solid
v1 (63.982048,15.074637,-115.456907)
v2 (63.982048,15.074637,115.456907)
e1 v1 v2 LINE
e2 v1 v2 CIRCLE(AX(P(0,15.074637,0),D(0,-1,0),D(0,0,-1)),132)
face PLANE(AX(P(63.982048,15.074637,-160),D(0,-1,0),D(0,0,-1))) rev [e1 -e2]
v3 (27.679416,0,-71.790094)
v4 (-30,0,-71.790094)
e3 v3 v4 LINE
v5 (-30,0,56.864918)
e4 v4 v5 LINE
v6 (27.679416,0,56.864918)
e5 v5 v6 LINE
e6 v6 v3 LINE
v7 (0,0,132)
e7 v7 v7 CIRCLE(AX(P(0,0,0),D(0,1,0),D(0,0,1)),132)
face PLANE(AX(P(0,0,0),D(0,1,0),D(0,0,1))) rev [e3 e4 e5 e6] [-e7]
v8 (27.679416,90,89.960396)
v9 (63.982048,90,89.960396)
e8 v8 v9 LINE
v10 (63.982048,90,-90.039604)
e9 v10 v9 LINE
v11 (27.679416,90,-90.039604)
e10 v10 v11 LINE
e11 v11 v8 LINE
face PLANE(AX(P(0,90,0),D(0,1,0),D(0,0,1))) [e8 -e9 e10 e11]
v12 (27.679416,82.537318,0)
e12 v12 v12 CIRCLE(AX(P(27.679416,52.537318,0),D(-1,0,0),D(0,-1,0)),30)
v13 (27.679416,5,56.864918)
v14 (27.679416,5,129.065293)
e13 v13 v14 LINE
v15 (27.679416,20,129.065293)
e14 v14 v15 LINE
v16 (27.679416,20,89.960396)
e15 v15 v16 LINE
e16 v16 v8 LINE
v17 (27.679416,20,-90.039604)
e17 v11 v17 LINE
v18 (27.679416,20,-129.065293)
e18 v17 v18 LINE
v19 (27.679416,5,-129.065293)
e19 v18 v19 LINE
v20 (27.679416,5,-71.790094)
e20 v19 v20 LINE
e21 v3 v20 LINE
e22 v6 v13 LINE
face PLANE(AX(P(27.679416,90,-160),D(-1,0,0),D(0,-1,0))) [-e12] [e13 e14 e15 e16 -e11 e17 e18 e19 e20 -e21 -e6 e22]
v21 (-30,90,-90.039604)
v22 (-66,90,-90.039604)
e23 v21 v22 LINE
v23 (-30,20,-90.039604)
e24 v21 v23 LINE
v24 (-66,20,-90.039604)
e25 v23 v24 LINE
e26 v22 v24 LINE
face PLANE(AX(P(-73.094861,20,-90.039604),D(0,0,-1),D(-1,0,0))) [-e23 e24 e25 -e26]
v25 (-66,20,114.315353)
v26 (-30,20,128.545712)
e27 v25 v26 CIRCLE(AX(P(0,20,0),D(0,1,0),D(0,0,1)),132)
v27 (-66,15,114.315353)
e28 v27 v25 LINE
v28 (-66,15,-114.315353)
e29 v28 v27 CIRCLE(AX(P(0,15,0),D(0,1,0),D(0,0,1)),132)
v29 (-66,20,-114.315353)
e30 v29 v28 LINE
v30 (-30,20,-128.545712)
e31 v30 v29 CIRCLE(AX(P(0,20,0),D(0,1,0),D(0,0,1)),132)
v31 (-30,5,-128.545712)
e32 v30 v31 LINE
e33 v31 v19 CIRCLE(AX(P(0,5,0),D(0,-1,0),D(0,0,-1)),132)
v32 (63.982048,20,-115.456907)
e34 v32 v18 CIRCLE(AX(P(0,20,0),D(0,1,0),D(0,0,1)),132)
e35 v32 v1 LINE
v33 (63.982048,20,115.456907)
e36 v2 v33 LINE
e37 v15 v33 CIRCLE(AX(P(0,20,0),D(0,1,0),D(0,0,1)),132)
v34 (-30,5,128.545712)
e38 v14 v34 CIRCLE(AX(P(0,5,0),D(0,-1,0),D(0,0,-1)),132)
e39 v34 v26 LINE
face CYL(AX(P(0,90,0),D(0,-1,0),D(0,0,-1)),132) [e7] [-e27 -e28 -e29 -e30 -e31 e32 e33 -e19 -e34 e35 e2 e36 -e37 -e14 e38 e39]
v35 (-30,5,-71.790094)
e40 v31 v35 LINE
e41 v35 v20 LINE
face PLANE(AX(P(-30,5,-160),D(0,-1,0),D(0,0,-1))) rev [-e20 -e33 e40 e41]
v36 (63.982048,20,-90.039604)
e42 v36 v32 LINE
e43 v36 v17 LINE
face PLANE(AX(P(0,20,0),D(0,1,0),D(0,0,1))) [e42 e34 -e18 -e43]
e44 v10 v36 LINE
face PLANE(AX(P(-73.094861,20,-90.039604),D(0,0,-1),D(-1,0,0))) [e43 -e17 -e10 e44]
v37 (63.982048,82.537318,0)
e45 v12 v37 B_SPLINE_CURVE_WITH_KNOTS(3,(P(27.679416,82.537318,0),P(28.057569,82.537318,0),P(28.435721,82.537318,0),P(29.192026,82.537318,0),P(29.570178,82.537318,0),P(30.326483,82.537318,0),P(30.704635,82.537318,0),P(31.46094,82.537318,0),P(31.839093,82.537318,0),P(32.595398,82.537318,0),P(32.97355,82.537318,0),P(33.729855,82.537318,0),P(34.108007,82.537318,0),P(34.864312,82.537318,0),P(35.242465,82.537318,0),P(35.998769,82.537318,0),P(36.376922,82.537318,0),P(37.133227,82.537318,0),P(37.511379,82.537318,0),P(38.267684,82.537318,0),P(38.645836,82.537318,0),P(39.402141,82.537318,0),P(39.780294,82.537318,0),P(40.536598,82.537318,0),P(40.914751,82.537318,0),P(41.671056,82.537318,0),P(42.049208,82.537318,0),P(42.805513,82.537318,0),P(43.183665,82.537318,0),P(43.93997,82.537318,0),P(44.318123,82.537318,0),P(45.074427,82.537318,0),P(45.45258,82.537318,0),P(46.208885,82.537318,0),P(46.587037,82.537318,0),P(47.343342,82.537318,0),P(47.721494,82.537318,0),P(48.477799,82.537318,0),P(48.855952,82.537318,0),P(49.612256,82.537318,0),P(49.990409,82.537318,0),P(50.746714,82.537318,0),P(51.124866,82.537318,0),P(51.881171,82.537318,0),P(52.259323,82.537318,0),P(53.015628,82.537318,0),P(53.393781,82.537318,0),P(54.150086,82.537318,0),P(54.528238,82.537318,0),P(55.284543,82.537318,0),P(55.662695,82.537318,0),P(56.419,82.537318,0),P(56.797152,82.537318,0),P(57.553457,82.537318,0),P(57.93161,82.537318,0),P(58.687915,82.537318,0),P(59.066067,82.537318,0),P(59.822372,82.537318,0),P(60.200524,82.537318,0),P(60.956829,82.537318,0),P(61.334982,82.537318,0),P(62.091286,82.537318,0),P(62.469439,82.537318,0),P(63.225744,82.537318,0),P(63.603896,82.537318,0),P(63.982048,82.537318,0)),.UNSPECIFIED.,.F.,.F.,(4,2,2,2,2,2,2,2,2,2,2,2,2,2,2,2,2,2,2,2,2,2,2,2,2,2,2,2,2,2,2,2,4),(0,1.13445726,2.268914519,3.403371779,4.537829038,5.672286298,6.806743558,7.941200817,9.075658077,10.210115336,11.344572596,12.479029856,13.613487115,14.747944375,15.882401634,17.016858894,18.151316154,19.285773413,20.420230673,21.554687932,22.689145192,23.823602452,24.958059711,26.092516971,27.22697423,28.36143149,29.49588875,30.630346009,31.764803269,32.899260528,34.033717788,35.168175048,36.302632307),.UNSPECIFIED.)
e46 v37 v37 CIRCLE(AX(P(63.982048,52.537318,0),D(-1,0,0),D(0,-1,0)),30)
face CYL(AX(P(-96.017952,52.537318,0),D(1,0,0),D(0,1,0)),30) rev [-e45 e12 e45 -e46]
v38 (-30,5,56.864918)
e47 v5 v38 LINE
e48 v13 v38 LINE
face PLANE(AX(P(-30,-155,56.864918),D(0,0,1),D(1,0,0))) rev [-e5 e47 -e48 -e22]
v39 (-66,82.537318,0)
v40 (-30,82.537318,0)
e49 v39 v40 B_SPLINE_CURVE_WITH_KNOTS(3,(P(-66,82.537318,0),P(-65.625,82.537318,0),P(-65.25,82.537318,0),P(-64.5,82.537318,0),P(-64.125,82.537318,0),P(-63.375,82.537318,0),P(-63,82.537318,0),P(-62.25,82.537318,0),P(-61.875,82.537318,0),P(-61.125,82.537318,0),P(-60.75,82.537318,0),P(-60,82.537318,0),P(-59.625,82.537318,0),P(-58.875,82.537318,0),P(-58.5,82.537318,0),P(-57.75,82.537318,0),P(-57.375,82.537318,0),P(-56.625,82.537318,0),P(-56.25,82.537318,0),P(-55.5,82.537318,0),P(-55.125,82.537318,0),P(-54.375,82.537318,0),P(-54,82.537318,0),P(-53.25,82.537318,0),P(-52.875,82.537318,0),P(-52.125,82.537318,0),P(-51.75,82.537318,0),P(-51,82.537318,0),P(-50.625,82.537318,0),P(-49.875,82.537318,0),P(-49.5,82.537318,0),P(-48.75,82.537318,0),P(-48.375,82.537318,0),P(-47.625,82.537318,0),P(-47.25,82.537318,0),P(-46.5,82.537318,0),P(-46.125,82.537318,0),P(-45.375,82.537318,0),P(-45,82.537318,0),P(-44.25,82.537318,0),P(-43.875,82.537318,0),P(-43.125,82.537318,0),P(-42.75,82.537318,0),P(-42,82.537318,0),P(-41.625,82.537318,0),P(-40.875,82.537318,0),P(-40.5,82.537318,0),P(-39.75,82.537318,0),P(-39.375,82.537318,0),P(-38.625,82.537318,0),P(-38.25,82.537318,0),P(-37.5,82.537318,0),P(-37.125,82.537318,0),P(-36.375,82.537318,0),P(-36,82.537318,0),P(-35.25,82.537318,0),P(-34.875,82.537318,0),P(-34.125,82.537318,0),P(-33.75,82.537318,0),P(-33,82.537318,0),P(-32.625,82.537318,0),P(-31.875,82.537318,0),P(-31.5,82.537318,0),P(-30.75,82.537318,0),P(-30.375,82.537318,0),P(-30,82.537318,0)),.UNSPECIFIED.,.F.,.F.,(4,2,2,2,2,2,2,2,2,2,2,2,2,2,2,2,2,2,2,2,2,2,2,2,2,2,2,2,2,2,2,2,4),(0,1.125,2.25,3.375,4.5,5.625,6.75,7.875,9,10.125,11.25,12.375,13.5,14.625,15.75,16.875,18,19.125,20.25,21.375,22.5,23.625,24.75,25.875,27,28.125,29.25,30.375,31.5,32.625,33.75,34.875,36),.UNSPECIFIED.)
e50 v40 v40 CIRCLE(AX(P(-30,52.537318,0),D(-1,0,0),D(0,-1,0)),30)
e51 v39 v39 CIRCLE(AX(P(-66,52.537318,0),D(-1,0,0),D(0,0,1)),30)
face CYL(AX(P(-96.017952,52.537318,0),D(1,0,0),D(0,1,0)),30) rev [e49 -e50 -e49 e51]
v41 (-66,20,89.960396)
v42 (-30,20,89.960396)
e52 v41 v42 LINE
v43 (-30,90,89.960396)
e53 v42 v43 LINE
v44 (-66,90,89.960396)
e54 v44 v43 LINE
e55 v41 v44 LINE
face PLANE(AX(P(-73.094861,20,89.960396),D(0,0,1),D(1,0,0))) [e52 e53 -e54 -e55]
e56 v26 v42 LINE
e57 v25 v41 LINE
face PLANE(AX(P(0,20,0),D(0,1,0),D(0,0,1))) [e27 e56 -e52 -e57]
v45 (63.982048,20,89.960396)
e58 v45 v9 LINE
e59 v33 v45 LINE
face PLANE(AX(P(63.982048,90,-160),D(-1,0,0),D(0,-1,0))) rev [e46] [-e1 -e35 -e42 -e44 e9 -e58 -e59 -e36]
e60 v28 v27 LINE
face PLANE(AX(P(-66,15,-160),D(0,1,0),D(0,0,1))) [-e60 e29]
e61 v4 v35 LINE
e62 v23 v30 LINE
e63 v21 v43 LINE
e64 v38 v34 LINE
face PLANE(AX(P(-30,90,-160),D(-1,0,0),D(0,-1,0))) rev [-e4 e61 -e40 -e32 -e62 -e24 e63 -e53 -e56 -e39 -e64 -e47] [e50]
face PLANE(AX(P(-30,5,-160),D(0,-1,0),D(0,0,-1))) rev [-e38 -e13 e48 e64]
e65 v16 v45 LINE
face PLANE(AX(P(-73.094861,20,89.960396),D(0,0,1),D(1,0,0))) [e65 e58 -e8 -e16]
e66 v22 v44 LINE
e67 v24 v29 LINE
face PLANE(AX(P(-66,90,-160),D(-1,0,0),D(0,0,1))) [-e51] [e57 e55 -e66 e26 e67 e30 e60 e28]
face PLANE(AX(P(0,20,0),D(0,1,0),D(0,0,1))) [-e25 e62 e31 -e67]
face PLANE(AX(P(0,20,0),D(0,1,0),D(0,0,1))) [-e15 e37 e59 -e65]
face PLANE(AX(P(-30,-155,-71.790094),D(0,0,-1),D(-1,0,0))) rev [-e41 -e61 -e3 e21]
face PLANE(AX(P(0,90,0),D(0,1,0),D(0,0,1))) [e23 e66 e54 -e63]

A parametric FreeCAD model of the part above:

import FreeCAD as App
import Part
import Sketcher

doc = App.newDocument("Part")
body = doc.addObject("PartDesign::Body", "Body")

# Sketch on XZ plane
sketch1 = body.newObject("Sketcher::SketchObject", "Sketch")
sketch1.AttachmentSupport = (doc.getObject("XZ_Plane"), [""])
sketch1.MapMode = "FlatFace"
sketch1.addGeometry(Part.Circle(App.Vector(0, 0, 0), App.Vector(0, 0, 1), 132), False)
sketch1.addConstraint(Sketcher.Constraint("Coincident", 0, 3, -1, 1))
sketch1.addConstraint(Sketcher.Constraint("Diameter", 0, 264.0))
pad1 = body.newObject("PartDesign::Pad", "Pad")
pad1.Profile = sketch1
pad1.Length = 90
pad1.Reversed = True

# Sketch on XY plane
sketch2 = body.newObject("Sketcher::SketchObject", "Sketch001")
sketch2.AttachmentSupport = (doc.getObject("XY_Plane"), [""])
sketch2.MapMode = "FlatFace"
sketch2.addGeometry(Part.LineSegment(App.Vector(-30, 90, 0), App.Vector(-30, 5, 0)), False)
sketch2.addGeometry(Part.LineSegment(App.Vector(-30, 5, 0), App.Vector(28, 5, 0)), False)
sketch2.addGeometry(Part.LineSegment(App.Vector(28, 5, 0), App.Vector(28, 90, 0)), False)
sketch2.addGeometry(Part.LineSegment(App.Vector(28, 90, 0), App.Vector(-30, 90, 0)), False)
sketch2.addConstraint(Sketcher.Constraint("Coincident", 0, 2, 1, 1))
sketch2.addConstraint(Sketcher.Constraint("Coincident", 1, 2, 2, 1))
sketch2.addConstraint(Sketcher.Constraint("Coincident", 2, 2, 3, 1))
sketch2.addConstraint(Sketcher.Constraint("Coincident", 3, 2, 0, 1))
sketch2.addConstraint(Sketcher.Constraint("Vertical", 0))
sketch2.addConstraint(Sketcher.Constraint("Horizontal", 1))
sketch2.addConstraint(Sketcher.Constraint("Vertical", 2))
sketch2.addConstraint(Sketcher.Constraint("Horizontal", 3))
sketch2.addConstraint(Sketcher.Constraint("DistanceY", 0, 2, 0, 1, 85.0))
sketch2.addConstraint(Sketcher.Constraint("DistanceX", 0, 2, -1, 1, 30.0))
sketch2.addConstraint(Sketcher.Constraint("DistanceY", -1, 1, 0, 2, 5.0))
sketch2.addConstraint(Sketcher.Constraint("DistanceX", 1, 1, 1, 2, 57.679416))
pocket1 = body.newObject("PartDesign::Pocket", "Pocket")
pocket1.Profile = sketch2
pocket1.Length = 320
pocket1.Midplane = True

# Sketch on XY plane
sketch3 = body.newObject("Sketcher::SketchObject", "Sketch002")
sketch3.AttachmentSupport = (doc.getObject("XY_Plane"), [""])
sketch3.MapMode = "FlatFace"
sketch3.addGeometry(Part.LineSegment(App.Vector(-132, 90, 0), App.Vector(-132, 15, 0)), False)
sketch3.addGeometry(Part.LineSegment(App.Vector(-132, 15, 0), App.Vector(-66, 15, 0)), False)
sketch3.addGeometry(Part.LineSegment(App.Vector(-66, 15, 0), App.Vector(-66, 90, 0)), False)
sketch3.addGeometry(Part.LineSegment(App.Vector(-66, 90, 0), App.Vector(-132, 90, 0)), False)
sketch3.addGeometry(Part.LineSegment(App.Vector(64, 90, 0), App.Vector(64, 15, 0)), False)
sketch3.addGeometry(Part.LineSegment(App.Vector(64, 15, 0), App.Vector(134, 15, 0)), False)
sketch3.addGeometry(Part.LineSegment(App.Vector(134, 15, 0), App.Vector(134, 90, 0)), False)
sketch3.addGeometry(Part.LineSegment(App.Vector(134, 90, 0), App.Vector(64, 90, 0)), False)
sketch3.addConstraint(Sketcher.Constraint("Coincident", 0, 2, 1, 1))
sketch3.addConstraint(Sketcher.Constraint("Coincident", 1, 2, 2, 1))
sketch3.addConstraint(Sketcher.Constraint("Coincident", 2, 2, 3, 1))
sketch3.addConstraint(Sketcher.Constraint("Coincident", 3, 2, 0, 1))
sketch3.addConstraint(Sketcher.Constraint("Coincident", 4, 2, 5, 1))
sketch3.addConstraint(Sketcher.Constraint("Coincident", 5, 2, 6, 1))
sketch3.addConstraint(Sketcher.Constraint("Coincident", 6, 2, 7, 1))
sketch3.addConstraint(Sketcher.Constraint("Coincident", 7, 2, 4, 1))
sketch3.addConstraint(Sketcher.Constraint("Vertical", 0))
sketch3.addConstraint(Sketcher.Constraint("Horizontal", 1))
sketch3.addConstraint(Sketcher.Constraint("Vertical", 2))
sketch3.addConstraint(Sketcher.Constraint("Horizontal", 3))
sketch3.addConstraint(Sketcher.Constraint("Vertical", 4))
sketch3.addConstraint(Sketcher.Constraint("Horizontal", 5))
sketch3.addConstraint(Sketcher.Constraint("Vertical", 6))
sketch3.addConstraint(Sketcher.Constraint("Horizontal", 7))
sketch3.addConstraint(Sketcher.Constraint("Horizontal", 3, 2, 6, 2))
sketch3.addConstraint(Sketcher.Constraint("DistanceX", 1, 1, 1, 2, 66.0))
sketch3.addConstraint(Sketcher.Constraint("DistanceY", 0, 2, 0, 1, 75.0))
sketch3.addConstraint(Sketcher.Constraint("DistanceX", 0, 2, -1, 1, 132.0))
sketch3.addConstraint(Sketcher.Constraint("DistanceY", -1, 1, 0, 2, 15.0))
sketch3.addConstraint(Sketcher.Constraint("DistanceX", 5, 1, 5, 2, 69.873767))
sketch3.addConstraint(Sketcher.Constraint("DistanceY", 4, 2, 4, 1, 74.925363))
sketch3.addConstraint(Sketcher.Constraint("DistanceX", -1, 1, 4, 2, 63.982048))
pocket2 = body.newObject("PartDesign::Pocket", "Pocket001")
pocket2.Profile = sketch3
pocket2.Length = 320
pocket2.Midplane = True

# Sketch on YZ plane
sketch4 = body.newObject("Sketcher::SketchObject", "Sketch003")
sketch4.AttachmentSupport = (doc.getObject("YZ_Plane"), [""])
sketch4.MapMode = "FlatFace"
sketch4.AttachmentOffset = App.Placement(App.Vector(0, 0, 63.982048), App.Rotation())
sketch4.addGeometry(Part.Circle(App.Vector(53, 0, 0), App.Vector(0, 0, 1), 30), False)
sketch4.addConstraint(Sketcher.Constraint("PointOnObject", 0, 3, -1))
sketch4.addConstraint(Sketcher.Constraint("Diameter", 0, 60.0))
sketch4.addConstraint(Sketcher.Constraint("DistanceX", -1, 1, 0, 3, 52.537318))
pocket3 = body.newObject("PartDesign::Pocket", "Pocket002")
pocket3.Profile = sketch4
pocket3.Length = 320
pocket3.Midplane = True

# Sketch on XZ plane
sketch5 = body.newObject("Sketcher::SketchObject", "Sketch004")
sketch5.AttachmentSupport = (doc.getObject("XZ_Plane"), [""])
sketch5.MapMode = "FlatFace"
sketch5.AttachmentOffset = App.Placement(App.Vector(0, 0, -5), App.Rotation())
sketch5.addGeometry(Part.LineSegment(App.Vector(-30, -72, 0), App.Vector(-30, 57, 0)), False)
sketch5.addGeometry(Part.LineSegment(App.Vector(-30, 57, 0), App.Vector(28, 57, 0)), False)
sketch5.addGeometry(Part.LineSegment(App.Vector(28, 57, 0), App.Vector(28, -72, 0)), False)
sketch5.addGeometry(Part.LineSegment(App.Vector(28, -72, 0), App.Vector(-30, -72, 0)), False)
sketch5.addConstraint(Sketcher.Constraint("Coincident", 0, 2, 1, 1))
sketch5.addConstraint(Sketcher.Constraint("Coincident", 1, 2, 2, 1))
sketch5.addConstraint(Sketcher.Constraint("Coincident", 2, 2, 3, 1))
sketch5.addConstraint(Sketcher.Constraint("Coincident", 3, 2, 0, 1))
sketch5.addConstraint(Sketcher.Constraint("Vertical", 0))
sketch5.addConstraint(Sketcher.Constraint("Horizontal", 1))
sketch5.addConstraint(Sketcher.Constraint("Vertical", 2))
sketch5.addConstraint(Sketcher.Constraint("Horizontal", 3))
sketch5.addConstraint(Sketcher.Constraint("DistanceX", 0, 2, -1, 1, 30.0))
sketch5.addConstraint(Sketcher.Constraint("DistanceY", 0, 1, 0, 2, 128.655012))
sketch5.addConstraint(Sketcher.Constraint("DistanceX", 1, 1, 1, 2, 57.679416))
sketch5.addConstraint(Sketcher.Constraint("DistanceY", -1, 1, 0, 2, 56.864918))
pocket4 = body.newObject("PartDesign::Pocket", "Pocket003")
pocket4.Profile = sketch5
pocket4.Length = 320
pocket4.Midplane = True

# Sketch on XZ plane
sketch6 = body.newObject("Sketcher::SketchObject", "Sketch005")
sketch6.AttachmentSupport = (doc.getObject("XZ_Plane"), [""])
sketch6.MapMode = "FlatFace"
sketch6.AttachmentOffset = App.Placement(App.Vector(0, 0, -90), App.Rotation())
sketch6.addGeometry(Part.LineSegment(App.Vector(-106, -136, 0), App.Vector(-106, 141, 0)), False)
sketch6.addGeometry(Part.LineSegment(App.Vector(-106, 141, 0), App.Vector(97, 141, 0)), False)
sketch6.addGeometry(Part.LineSegment(App.Vector(97, 141, 0), App.Vector(97, -136, 0)), False)
sketch6.addGeometry(Part.LineSegment(App.Vector(97, -136, 0), App.Vector(-106, -136, 0)), False)
sketch6.addGeometry(Part.LineSegment(App.Vector(70, 90, 0), App.Vector(-73, 90, 0)), False)
sketch6.addGeometry(Part.LineSegment(App.Vector(-73, 90, 0), App.Vector(-73, -90, 0)), False)
sketch6.addGeometry(Part.LineSegment(App.Vector(-73, -90, 0), App.Vector(70, -90, 0)), False)
sketch6.addGeometry(Part.LineSegment(App.Vector(70, -90, 0), App.Vector(70, 90, 0)), False)
sketch6.addConstraint(Sketcher.Constraint("Coincident", 0, 2, 1, 1))
sketch6.addConstraint(Sketcher.Constraint("Coincident", 1, 2, 2, 1))
sketch6.addConstraint(Sketcher.Constraint("Coincident", 2, 2, 3, 1))
sketch6.addConstraint(Sketcher.Constraint("Coincident", 3, 2, 0, 1))
sketch6.addConstraint(Sketcher.Constraint("Coincident", 4, 2, 5, 1))
sketch6.addConstraint(Sketcher.Constraint("Coincident", 5, 2, 6, 1))
sketch6.addConstraint(Sketcher.Constraint("Coincident", 6, 2, 7, 1))
sketch6.addConstraint(Sketcher.Constraint("Coincident", 7, 2, 4, 1))
sketch6.addConstraint(Sketcher.Constraint("Vertical", 0))
sketch6.addConstraint(Sketcher.Constraint("Horizontal", 1))
sketch6.addConstraint(Sketcher.Constraint("Vertical", 2))
sketch6.addConstraint(Sketcher.Constraint("Horizontal", 3))
sketch6.addConstraint(Sketcher.Constraint("Horizontal", 4))
sketch6.addConstraint(Sketcher.Constraint("Vertical", 5))
sketch6.addConstraint(Sketcher.Constraint("Horizontal", 6))
sketch6.addConstraint(Sketcher.Constraint("Vertical", 7))
sketch6.addConstraint(Sketcher.Constraint("DistanceY", 5, 2, 5, 1, 180.0))
sketch6.addConstraint(Sketcher.Constraint("DistanceY", 0, 1, 0, 2, 277.255172))
sketch6.addConstraint(Sketcher.Constraint("DistanceX", -1, 1, 1, 2, 96.6594))
sketch6.addConstraint(Sketcher.Constraint("DistanceX", 1, 1, 1, 2, 202.247475))
sketch6.addConstraint(Sketcher.Constraint("DistanceX", 4, 2, 4, 1, 143.334547))
sketch6.addConstraint(Sketcher.Constraint("DistanceY", -1, 1, 0, 2, 141.36066))
sketch6.addConstraint(Sketcher.Constraint("DistanceX", 4, 2, -1, 1, 73.094861))
sketch6.addConstraint(Sketcher.Constraint("DistanceY", -1, 1, 4, 2, 89.960396))
pocket5 = body.newObject("PartDesign::Pocket", "Pocket004")
pocket5.Profile = sketch6
pocket5.Length = 140
pocket5.Midplane = True

doc.recompute()
